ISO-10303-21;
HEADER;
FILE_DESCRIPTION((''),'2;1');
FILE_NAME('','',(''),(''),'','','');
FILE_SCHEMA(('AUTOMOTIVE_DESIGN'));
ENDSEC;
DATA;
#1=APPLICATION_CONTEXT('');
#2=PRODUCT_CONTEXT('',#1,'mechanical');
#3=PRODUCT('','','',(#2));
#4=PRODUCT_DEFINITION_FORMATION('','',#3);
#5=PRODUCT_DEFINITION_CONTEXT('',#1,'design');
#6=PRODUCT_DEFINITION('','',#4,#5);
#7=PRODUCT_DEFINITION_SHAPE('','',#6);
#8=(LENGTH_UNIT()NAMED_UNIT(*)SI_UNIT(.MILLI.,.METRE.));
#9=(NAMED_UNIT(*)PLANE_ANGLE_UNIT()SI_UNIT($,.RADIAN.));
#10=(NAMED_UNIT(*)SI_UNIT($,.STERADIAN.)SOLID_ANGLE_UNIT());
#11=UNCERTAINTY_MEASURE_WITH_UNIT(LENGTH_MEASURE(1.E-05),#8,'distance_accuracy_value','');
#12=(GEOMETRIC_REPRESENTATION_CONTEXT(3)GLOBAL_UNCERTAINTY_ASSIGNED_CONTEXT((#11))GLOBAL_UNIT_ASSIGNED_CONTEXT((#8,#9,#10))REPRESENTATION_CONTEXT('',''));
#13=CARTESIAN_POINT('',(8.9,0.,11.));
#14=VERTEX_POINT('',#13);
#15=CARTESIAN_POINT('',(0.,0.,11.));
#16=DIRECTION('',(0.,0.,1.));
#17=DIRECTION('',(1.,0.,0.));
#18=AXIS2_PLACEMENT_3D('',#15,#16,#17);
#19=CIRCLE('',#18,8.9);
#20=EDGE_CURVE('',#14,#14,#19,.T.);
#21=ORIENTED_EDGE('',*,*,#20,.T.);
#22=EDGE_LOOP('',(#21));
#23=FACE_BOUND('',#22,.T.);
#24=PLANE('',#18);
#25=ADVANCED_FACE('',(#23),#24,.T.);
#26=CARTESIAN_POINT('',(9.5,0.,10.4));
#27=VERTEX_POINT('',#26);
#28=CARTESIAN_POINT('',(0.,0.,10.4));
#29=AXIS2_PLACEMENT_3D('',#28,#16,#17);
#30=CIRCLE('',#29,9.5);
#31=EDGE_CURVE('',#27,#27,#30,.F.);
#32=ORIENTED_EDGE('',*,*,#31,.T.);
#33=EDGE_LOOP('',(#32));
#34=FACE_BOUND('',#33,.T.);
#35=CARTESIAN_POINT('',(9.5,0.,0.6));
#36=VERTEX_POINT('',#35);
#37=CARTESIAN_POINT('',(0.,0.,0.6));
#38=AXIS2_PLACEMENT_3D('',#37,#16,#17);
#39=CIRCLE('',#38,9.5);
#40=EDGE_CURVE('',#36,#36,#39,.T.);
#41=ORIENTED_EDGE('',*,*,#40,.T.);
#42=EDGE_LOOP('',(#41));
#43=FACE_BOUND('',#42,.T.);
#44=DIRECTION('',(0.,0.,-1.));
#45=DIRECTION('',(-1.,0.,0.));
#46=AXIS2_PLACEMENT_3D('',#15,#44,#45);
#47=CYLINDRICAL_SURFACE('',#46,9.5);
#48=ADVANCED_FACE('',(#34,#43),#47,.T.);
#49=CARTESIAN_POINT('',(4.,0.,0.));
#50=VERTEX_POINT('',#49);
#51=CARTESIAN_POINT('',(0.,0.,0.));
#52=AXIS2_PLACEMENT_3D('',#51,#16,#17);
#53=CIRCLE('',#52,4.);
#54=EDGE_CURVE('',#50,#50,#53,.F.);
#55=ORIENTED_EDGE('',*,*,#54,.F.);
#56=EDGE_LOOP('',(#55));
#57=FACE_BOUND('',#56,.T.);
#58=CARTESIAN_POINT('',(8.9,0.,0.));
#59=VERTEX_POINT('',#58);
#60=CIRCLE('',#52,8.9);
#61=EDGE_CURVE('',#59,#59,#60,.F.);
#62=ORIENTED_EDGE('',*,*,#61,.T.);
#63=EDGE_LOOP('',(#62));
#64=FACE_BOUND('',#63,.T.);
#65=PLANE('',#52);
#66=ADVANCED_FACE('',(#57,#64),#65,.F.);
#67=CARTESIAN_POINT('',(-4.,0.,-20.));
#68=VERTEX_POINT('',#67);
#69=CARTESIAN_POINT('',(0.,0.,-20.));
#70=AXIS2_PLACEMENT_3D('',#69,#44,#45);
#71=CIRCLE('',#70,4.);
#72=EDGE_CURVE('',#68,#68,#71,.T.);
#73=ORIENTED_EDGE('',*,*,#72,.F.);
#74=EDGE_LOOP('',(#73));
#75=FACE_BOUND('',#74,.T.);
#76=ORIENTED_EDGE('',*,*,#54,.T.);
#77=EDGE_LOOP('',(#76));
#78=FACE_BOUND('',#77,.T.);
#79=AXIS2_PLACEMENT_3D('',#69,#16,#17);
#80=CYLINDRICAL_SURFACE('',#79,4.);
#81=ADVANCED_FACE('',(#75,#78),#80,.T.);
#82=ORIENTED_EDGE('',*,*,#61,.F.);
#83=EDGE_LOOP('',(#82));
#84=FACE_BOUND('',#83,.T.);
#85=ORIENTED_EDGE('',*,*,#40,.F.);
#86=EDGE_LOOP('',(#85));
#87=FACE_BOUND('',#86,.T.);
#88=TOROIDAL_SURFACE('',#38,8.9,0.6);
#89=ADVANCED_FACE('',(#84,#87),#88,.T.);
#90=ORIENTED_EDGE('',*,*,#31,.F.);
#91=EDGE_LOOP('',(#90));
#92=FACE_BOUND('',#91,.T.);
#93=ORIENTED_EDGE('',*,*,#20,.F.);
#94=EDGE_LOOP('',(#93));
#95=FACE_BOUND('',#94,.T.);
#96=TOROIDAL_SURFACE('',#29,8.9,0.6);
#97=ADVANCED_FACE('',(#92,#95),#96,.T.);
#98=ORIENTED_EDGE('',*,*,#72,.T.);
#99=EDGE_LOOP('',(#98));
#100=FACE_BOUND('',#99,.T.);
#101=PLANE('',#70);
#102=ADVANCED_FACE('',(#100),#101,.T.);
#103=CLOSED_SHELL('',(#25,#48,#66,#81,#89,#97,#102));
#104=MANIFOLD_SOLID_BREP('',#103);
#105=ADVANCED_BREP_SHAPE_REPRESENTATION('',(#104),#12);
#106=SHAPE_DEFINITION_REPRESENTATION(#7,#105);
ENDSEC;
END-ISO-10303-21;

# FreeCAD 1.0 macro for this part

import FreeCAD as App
import Part
import Sketcher

V = App.Vector
Q = App.Units.Quantity


def edges_at(feature, points):
    """Names of the edges that pass closest to the given points."""
    edges = feature.Shape.Edges
    near = lambda p: min(range(len(edges)), key=lambda i: edges[i].distToShape(Part.Vertex(*p))[0])
    return sorted({f"Edge{near(p) + 1}" for p in points})

doc = App.newDocument("Part")
body = doc.addObject("PartDesign::Body", "Body")

# Sketch on XY plane
sketch1 = doc.addObject("Sketcher::SketchObject", "Sketch")
body.addObject(sketch1)
sketch1.AttachmentSupport = (doc.XY_Plane, [""])
sketch1.MapMode = "FlatFace"
sketch1.addGeometry(Part.Circle(V(0, 0, 0), V(0, 0, 1), 10), False)
sketch1.addConstraint(Sketcher.Constraint("Coincident", 0, 3, -1, 1))
sketch1.addConstraint(Sketcher.Constraint("Diameter", 0, Q("19 mm")))
pad1 = doc.addObject("PartDesign::Pad", "Pad")
body.addObject(pad1)
pad1.Profile = sketch1
pad1.Length = 11

# Sketch on XY plane
sketch2 = doc.addObject("Sketcher::SketchObject", "Sketch001")
body.addObject(sketch2)
sketch2.AttachmentSupport = (doc.XY_Plane, [""])
sketch2.MapMode = "FlatFace"
sketch2.addGeometry(Part.Circle(V(0, 0, 0), V(0, 0, 1), 4), False)
sketch2.addConstraint(Sketcher.Constraint("Coincident", 0, 3, -1, 1))
sketch2.addConstraint(Sketcher.Constraint("Diameter", 0, Q("8 mm")))
pad2 = doc.addObject("PartDesign::Pad", "Pad001")
body.addObject(pad2)
pad2.Profile = sketch2
pad2.Length = 20
pad2.Reversed = True
doc.recompute()

fillet = doc.addObject("PartDesign::Fillet", "Fillet")
body.addObject(fillet)
fillet.Base = (pad2, edges_at(pad2, [(-9.5, 0, 11)]))
fillet.Radius = 0.6
doc.recompute()

fillet2 = doc.addObject("PartDesign::Fillet", "Fillet001")
body.addObject(fillet2)
fillet2.Base = (fillet, edges_at(fillet, [(-9.5, 0, 0)]))
fillet2.Radius = 0.6

doc.recompute()
